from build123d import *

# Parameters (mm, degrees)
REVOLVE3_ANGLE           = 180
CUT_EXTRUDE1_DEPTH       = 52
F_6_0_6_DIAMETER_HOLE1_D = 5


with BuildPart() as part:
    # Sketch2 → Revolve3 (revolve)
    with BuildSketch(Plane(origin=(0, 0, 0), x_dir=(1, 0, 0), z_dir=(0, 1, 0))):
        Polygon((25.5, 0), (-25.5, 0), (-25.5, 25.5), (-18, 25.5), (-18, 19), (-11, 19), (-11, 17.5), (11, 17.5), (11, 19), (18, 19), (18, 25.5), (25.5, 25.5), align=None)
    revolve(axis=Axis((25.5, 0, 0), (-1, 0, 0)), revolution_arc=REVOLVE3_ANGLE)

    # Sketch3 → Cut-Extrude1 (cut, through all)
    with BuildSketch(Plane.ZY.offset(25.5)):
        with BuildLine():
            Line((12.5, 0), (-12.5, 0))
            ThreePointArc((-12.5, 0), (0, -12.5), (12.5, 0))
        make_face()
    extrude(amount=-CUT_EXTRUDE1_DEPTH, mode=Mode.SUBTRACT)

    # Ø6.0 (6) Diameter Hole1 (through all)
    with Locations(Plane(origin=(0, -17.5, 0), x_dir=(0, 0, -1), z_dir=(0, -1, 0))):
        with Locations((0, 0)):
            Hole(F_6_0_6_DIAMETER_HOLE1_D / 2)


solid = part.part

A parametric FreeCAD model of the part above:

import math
import FreeCAD as App
import Part
import Sketcher
Q = App.Units.Quantity

doc = App.newDocument("Part")
body = doc.addObject("PartDesign::Body", "Body")

# Sketch on XZ plane
sketch1 = body.newObject("Sketcher::SketchObject", "Sketch")
sketch1.AttachmentSupport = (doc.getObject("XZ_Plane"), [""])
sketch1.MapMode = "FlatFace"
sketch1.addGeometry(Part.LineSegment(App.Vector(-25.5, 0, 0), App.Vector(25.5, 0, 0)), False)
sketch1.addGeometry(Part.LineSegment(App.Vector(25.5, 0, 0), App.Vector(25.5, -25.5, 0)), False)
sketch1.addGeometry(Part.LineSegment(App.Vector(25.5, -25.5, 0), App.Vector(18, -25.5, 0)), False)
sketch1.addGeometry(Part.LineSegment(App.Vector(18, -25.5, 0), App.Vector(18, -19, 0)), False)
sketch1.addGeometry(Part.LineSegment(App.Vector(18, -19, 0), App.Vector(11, -19, 0)), False)
sketch1.addGeometry(Part.LineSegment(App.Vector(11, -19, 0), App.Vector(11, -17.5, 0)), False)
sketch1.addGeometry(Part.LineSegment(App.Vector(11, -17.5, 0), App.Vector(-11, -17.5, 0)), False)
sketch1.addGeometry(Part.LineSegment(App.Vector(-11, -17.5, 0), App.Vector(-11, -19, 0)), False)
sketch1.addGeometry(Part.LineSegment(App.Vector(-11, -19, 0), App.Vector(-18, -19, 0)), False)
sketch1.addGeometry(Part.LineSegment(App.Vector(-18, -19, 0), App.Vector(-18, -25.5, 0)), False)
sketch1.addGeometry(Part.LineSegment(App.Vector(-18, -25.5, 0), App.Vector(-25.5, -25.5, 0)), False)
sketch1.addGeometry(Part.LineSegment(App.Vector(-25.5, -25.5, 0), App.Vector(-25.5, 0, 0)), False)
sketch1.addConstraint(Sketcher.Constraint("Coincident", 0, 2, 1, 1))
sketch1.addConstraint(Sketcher.Constraint("Coincident", 1, 2, 2, 1))
sketch1.addConstraint(Sketcher.Constraint("Coincident", 2, 2, 3, 1))
sketch1.addConstraint(Sketcher.Constraint("Coincident", 3, 2, 4, 1))
sketch1.addConstraint(Sketcher.Constraint("Coincident", 4, 2, 5, 1))
sketch1.addConstraint(Sketcher.Constraint("Coincident", 5, 2, 6, 1))
sketch1.addConstraint(Sketcher.Constraint("Coincident", 6, 2, 7, 1))
sketch1.addConstraint(Sketcher.Constraint("Coincident", 7, 2, 8, 1))
sketch1.addConstraint(Sketcher.Constraint("Coincident", 8, 2, 9, 1))
sketch1.addConstraint(Sketcher.Constraint("Coincident", 9, 2, 10, 1))
sketch1.addConstraint(Sketcher.Constraint("Coincident", 10, 2, 11, 1))
sketch1.addConstraint(Sketcher.Constraint("Coincident", 11, 2, 0, 1))
sketch1.addConstraint(Sketcher.Constraint("Horizontal", 0))
sketch1.addConstraint(Sketcher.Constraint("Vertical", 1))
sketch1.addConstraint(Sketcher.Constraint("Horizontal", 2))
sketch1.addConstraint(Sketcher.Constraint("Vertical", 3))
sketch1.addConstraint(Sketcher.Constraint("Horizontal", 4))
sketch1.addConstraint(Sketcher.Constraint("Vertical", 5))
sketch1.addConstraint(Sketcher.Constraint("Horizontal", 6))
sketch1.addConstraint(Sketcher.Constraint("Vertical", 7))
sketch1.addConstraint(Sketcher.Constraint("Horizontal", 8))
sketch1.addConstraint(Sketcher.Constraint("Vertical", 9))
sketch1.addConstraint(Sketcher.Constraint("Horizontal", 10))
sketch1.addConstraint(Sketcher.Constraint("Vertical", 11))
sketch1.addConstraint(Sketcher.Constraint("Symmetric", 0, 2, 11, 2, -1, 1))
sketch1.addConstraint(Sketcher.Constraint("Symmetric", 4, 2, 7, 2, -2))
sketch1.addConstraint(Sketcher.Constraint("Symmetric", 2, 2, 9, 2, -2))
sketch1.addConstraint(Sketcher.Constraint("DistanceX", 0, 1, 0, 2, Q("51 mm")))
sketch1.addConstraint(Sketcher.Constraint("DistanceX", 4, 2, 4, 1, Q("7 mm")))
sketch1.addConstraint(Sketcher.Constraint("DistanceX", 6, 2, 6, 1, Q("22 mm")))
sketch1.addConstraint(Sketcher.Constraint("DistanceY", 1, 2, 1, 1, Q("25.5 mm")))
sketch1.addConstraint(Sketcher.Constraint("DistanceY", 3, 1, 3, 2, Q("6.5 mm")))
sketch1.addConstraint(Sketcher.Constraint("DistanceY", 5, 1, 5, 2, Q("1.5 mm")))
revolution = body.newObject("PartDesign::Revolution", "Revolution")
revolution.Profile = sketch1
revolution.ReferenceAxis = (sketch1, ["H_Axis"])
revolution.Angle = 180
revolution.Reversed = True

# Sketch on YZ plane
sketch2 = body.newObject("Sketcher::SketchObject", "Sketch001")
sketch2.AttachmentSupport = (doc.getObject("YZ_Plane"), [""])
sketch2.MapMode = "FlatFace"
sketch2.AttachmentOffset = App.Placement(App.Vector(0, 0, -25.5), App.Rotation())
sketch2.addGeometry(Part.LineSegment(App.Vector(0, 12, 0), App.Vector(0, -12, 0)), False)
sketch2.addGeometry(Part.ArcOfCircle(Part.Circle(App.Vector(0, 0, 0), App.Vector(0, 0, 1), 12), math.radians(90), math.radians(270)), False)
sketch2.addConstraint(Sketcher.Constraint("Coincident", 0, 1, 1, 1))
sketch2.addConstraint(Sketcher.Constraint("Coincident", 1, 2, 0, 2))
sketch2.addConstraint(Sketcher.Constraint("Vertical", 0))
sketch2.addConstraint(Sketcher.Constraint("Coincident", 1, 3, -1, 1))
sketch2.addConstraint(Sketcher.Constraint("PointOnObject", 0, 1, -2))
sketch2.addConstraint(Sketcher.Constraint("Radius", 1, Q("12.5 mm")))
pocket1 = body.newObject("PartDesign::Pocket", "Pocket")
pocket1.Profile = sketch2
pocket1.Type = "ThroughAll"
pocket1.Reversed = True

# Sketch on XZ plane
sketch3 = body.newObject("Sketcher::SketchObject", "Sketch002")
sketch3.AttachmentSupport = (doc.getObject("XZ_Plane"), [""])
sketch3.MapMode = "FlatFace"
sketch3.AttachmentOffset = App.Placement(App.Vector(0, 0, 17.5), App.Rotation())
sketch3.addGeometry(Part.Circle(App.Vector(0, 0, 0), App.Vector(0, 0, 1), 2.5), False)
sketch3.addConstraint(Sketcher.Constraint("Coincident", 0, 3, -1, 1))
sketch3.addConstraint(Sketcher.Constraint("Diameter", 0, Q("5 mm")))
doc.recompute()
hole = body.newObject("PartDesign::Hole", "Hole")
hole.Profile = sketch3
hole.ThreadType = "None"
hole.Diameter = 5
hole.DepthType = "ThroughAll"

doc.recompute()
